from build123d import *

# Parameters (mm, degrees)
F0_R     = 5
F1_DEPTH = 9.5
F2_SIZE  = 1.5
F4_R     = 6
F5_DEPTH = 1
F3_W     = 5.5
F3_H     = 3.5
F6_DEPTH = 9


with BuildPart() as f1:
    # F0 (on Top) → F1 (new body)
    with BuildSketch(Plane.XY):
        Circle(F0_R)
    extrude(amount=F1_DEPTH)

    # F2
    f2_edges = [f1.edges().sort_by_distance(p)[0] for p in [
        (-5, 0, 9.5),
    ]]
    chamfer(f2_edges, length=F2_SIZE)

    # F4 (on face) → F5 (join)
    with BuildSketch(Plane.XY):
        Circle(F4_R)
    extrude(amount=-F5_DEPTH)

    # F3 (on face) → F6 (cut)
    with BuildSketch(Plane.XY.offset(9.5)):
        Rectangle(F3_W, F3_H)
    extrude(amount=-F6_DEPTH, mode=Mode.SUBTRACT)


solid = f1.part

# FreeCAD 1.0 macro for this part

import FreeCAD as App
import Part
import Sketcher
from FreeCAD import Vector
Q = App.Units.Quantity


def edges_at(feature, points):
    """Names of the edges that pass closest to the given points."""
    edges = feature.Shape.Edges
    near = lambda p: min(range(len(edges)), key=lambda i: edges[i].distToShape(Part.Vertex(*p))[0])
    return sorted({f"Edge{near(p) + 1}" for p in points})

doc = App.newDocument("Part")
body = doc.addObject("PartDesign::Body", "Body")

# Sketch on XY plane
sketch1 = body.newObject("Sketcher::SketchObject", "Sketch")
sketch1.AttachmentSupport = (doc.getObject("XY_Plane"), [""])
sketch1.MapMode = "FlatFace"
sketch1.addGeometry(Part.Circle(Vector(0, 0, 0), Vector(0, 0, 1), 5), False)
sketch1.addConstraint([
    Sketcher.Constraint("Coincident", 0, 3, -1, 1),
    Sketcher.Constraint("Diameter", 0, Q("10 mm")),
])
pad1 = body.newObject("PartDesign::Pad", "Pad")
pad1.Profile = sketch1
pad1.Length = 9.5
doc.recompute()

chamfer = body.newObject("PartDesign::Chamfer", "Chamfer")
chamfer.Base = (pad1, edges_at(pad1, [(-5, 0, 9.5)]))
chamfer.Size = 1.5

# Sketch on XY plane
sketch2 = body.newObject("Sketcher::SketchObject", "Sketch001")
sketch2.AttachmentSupport = (doc.getObject("XY_Plane"), [""])
sketch2.MapMode = "FlatFace"
sketch2.addGeometry(Part.Circle(Vector(0, 0, 0), Vector(0, 0, 1), 6), False)
sketch2.addConstraint([
    Sketcher.Constraint("Coincident", 0, 3, -1, 1),
    Sketcher.Constraint("Diameter", 0, Q("12 mm")),
])
pad2 = body.newObject("PartDesign::Pad", "Pad001")
pad2.Profile = sketch2
pad2.Length = 1
pad2.Reversed = True

# Sketch on XY plane
sketch3 = body.newObject("Sketcher::SketchObject", "Sketch002")
sketch3.AttachmentSupport = (doc.getObject("XY_Plane"), [""])
sketch3.MapMode = "FlatFace"
sketch3.AttachmentOffset = App.Placement(Vector(0, 0, 9.5), App.Rotation())
sketch3.addGeometry([
    Part.LineSegment(Vector(-2.8, 1.8, 0), Vector(-2.8, -1.8, 0)),
    Part.LineSegment(Vector(-2.8, -1.8, 0), Vector(2.8, -1.8, 0)),
    Part.LineSegment(Vector(2.8, -1.8, 0), Vector(2.8, 1.8, 0)),
    Part.LineSegment(Vector(2.8, 1.8, 0), Vector(-2.8, 1.8, 0)),
], False)
sketch3.addConstraint([
    Sketcher.Constraint("Coincident", 0, 2, 1, 1),
    Sketcher.Constraint("Coincident", 1, 2, 2, 1),
    Sketcher.Constraint("Coincident", 2, 2, 3, 1),
    Sketcher.Constraint("Coincident", 3, 2, 0, 1),
    Sketcher.Constraint("Vertical", 0),
    Sketcher.Constraint("Horizontal", 1),
    Sketcher.Constraint("Vertical", 2),
    Sketcher.Constraint("Horizontal", 3),
    Sketcher.Constraint("Symmetric", 0, 2, 2, 2, -1, 1),
    Sketcher.Constraint("DistanceX", 1, 1, 1, 2, Q("5.5 mm")),
    Sketcher.Constraint("DistanceY", 0, 2, 0, 1, Q("3.5 mm")),
])
pocket1 = body.newObject("PartDesign::Pocket", "Pocket")
pocket1.Profile = sketch3
pocket1.Length = 9

doc.recompute()
